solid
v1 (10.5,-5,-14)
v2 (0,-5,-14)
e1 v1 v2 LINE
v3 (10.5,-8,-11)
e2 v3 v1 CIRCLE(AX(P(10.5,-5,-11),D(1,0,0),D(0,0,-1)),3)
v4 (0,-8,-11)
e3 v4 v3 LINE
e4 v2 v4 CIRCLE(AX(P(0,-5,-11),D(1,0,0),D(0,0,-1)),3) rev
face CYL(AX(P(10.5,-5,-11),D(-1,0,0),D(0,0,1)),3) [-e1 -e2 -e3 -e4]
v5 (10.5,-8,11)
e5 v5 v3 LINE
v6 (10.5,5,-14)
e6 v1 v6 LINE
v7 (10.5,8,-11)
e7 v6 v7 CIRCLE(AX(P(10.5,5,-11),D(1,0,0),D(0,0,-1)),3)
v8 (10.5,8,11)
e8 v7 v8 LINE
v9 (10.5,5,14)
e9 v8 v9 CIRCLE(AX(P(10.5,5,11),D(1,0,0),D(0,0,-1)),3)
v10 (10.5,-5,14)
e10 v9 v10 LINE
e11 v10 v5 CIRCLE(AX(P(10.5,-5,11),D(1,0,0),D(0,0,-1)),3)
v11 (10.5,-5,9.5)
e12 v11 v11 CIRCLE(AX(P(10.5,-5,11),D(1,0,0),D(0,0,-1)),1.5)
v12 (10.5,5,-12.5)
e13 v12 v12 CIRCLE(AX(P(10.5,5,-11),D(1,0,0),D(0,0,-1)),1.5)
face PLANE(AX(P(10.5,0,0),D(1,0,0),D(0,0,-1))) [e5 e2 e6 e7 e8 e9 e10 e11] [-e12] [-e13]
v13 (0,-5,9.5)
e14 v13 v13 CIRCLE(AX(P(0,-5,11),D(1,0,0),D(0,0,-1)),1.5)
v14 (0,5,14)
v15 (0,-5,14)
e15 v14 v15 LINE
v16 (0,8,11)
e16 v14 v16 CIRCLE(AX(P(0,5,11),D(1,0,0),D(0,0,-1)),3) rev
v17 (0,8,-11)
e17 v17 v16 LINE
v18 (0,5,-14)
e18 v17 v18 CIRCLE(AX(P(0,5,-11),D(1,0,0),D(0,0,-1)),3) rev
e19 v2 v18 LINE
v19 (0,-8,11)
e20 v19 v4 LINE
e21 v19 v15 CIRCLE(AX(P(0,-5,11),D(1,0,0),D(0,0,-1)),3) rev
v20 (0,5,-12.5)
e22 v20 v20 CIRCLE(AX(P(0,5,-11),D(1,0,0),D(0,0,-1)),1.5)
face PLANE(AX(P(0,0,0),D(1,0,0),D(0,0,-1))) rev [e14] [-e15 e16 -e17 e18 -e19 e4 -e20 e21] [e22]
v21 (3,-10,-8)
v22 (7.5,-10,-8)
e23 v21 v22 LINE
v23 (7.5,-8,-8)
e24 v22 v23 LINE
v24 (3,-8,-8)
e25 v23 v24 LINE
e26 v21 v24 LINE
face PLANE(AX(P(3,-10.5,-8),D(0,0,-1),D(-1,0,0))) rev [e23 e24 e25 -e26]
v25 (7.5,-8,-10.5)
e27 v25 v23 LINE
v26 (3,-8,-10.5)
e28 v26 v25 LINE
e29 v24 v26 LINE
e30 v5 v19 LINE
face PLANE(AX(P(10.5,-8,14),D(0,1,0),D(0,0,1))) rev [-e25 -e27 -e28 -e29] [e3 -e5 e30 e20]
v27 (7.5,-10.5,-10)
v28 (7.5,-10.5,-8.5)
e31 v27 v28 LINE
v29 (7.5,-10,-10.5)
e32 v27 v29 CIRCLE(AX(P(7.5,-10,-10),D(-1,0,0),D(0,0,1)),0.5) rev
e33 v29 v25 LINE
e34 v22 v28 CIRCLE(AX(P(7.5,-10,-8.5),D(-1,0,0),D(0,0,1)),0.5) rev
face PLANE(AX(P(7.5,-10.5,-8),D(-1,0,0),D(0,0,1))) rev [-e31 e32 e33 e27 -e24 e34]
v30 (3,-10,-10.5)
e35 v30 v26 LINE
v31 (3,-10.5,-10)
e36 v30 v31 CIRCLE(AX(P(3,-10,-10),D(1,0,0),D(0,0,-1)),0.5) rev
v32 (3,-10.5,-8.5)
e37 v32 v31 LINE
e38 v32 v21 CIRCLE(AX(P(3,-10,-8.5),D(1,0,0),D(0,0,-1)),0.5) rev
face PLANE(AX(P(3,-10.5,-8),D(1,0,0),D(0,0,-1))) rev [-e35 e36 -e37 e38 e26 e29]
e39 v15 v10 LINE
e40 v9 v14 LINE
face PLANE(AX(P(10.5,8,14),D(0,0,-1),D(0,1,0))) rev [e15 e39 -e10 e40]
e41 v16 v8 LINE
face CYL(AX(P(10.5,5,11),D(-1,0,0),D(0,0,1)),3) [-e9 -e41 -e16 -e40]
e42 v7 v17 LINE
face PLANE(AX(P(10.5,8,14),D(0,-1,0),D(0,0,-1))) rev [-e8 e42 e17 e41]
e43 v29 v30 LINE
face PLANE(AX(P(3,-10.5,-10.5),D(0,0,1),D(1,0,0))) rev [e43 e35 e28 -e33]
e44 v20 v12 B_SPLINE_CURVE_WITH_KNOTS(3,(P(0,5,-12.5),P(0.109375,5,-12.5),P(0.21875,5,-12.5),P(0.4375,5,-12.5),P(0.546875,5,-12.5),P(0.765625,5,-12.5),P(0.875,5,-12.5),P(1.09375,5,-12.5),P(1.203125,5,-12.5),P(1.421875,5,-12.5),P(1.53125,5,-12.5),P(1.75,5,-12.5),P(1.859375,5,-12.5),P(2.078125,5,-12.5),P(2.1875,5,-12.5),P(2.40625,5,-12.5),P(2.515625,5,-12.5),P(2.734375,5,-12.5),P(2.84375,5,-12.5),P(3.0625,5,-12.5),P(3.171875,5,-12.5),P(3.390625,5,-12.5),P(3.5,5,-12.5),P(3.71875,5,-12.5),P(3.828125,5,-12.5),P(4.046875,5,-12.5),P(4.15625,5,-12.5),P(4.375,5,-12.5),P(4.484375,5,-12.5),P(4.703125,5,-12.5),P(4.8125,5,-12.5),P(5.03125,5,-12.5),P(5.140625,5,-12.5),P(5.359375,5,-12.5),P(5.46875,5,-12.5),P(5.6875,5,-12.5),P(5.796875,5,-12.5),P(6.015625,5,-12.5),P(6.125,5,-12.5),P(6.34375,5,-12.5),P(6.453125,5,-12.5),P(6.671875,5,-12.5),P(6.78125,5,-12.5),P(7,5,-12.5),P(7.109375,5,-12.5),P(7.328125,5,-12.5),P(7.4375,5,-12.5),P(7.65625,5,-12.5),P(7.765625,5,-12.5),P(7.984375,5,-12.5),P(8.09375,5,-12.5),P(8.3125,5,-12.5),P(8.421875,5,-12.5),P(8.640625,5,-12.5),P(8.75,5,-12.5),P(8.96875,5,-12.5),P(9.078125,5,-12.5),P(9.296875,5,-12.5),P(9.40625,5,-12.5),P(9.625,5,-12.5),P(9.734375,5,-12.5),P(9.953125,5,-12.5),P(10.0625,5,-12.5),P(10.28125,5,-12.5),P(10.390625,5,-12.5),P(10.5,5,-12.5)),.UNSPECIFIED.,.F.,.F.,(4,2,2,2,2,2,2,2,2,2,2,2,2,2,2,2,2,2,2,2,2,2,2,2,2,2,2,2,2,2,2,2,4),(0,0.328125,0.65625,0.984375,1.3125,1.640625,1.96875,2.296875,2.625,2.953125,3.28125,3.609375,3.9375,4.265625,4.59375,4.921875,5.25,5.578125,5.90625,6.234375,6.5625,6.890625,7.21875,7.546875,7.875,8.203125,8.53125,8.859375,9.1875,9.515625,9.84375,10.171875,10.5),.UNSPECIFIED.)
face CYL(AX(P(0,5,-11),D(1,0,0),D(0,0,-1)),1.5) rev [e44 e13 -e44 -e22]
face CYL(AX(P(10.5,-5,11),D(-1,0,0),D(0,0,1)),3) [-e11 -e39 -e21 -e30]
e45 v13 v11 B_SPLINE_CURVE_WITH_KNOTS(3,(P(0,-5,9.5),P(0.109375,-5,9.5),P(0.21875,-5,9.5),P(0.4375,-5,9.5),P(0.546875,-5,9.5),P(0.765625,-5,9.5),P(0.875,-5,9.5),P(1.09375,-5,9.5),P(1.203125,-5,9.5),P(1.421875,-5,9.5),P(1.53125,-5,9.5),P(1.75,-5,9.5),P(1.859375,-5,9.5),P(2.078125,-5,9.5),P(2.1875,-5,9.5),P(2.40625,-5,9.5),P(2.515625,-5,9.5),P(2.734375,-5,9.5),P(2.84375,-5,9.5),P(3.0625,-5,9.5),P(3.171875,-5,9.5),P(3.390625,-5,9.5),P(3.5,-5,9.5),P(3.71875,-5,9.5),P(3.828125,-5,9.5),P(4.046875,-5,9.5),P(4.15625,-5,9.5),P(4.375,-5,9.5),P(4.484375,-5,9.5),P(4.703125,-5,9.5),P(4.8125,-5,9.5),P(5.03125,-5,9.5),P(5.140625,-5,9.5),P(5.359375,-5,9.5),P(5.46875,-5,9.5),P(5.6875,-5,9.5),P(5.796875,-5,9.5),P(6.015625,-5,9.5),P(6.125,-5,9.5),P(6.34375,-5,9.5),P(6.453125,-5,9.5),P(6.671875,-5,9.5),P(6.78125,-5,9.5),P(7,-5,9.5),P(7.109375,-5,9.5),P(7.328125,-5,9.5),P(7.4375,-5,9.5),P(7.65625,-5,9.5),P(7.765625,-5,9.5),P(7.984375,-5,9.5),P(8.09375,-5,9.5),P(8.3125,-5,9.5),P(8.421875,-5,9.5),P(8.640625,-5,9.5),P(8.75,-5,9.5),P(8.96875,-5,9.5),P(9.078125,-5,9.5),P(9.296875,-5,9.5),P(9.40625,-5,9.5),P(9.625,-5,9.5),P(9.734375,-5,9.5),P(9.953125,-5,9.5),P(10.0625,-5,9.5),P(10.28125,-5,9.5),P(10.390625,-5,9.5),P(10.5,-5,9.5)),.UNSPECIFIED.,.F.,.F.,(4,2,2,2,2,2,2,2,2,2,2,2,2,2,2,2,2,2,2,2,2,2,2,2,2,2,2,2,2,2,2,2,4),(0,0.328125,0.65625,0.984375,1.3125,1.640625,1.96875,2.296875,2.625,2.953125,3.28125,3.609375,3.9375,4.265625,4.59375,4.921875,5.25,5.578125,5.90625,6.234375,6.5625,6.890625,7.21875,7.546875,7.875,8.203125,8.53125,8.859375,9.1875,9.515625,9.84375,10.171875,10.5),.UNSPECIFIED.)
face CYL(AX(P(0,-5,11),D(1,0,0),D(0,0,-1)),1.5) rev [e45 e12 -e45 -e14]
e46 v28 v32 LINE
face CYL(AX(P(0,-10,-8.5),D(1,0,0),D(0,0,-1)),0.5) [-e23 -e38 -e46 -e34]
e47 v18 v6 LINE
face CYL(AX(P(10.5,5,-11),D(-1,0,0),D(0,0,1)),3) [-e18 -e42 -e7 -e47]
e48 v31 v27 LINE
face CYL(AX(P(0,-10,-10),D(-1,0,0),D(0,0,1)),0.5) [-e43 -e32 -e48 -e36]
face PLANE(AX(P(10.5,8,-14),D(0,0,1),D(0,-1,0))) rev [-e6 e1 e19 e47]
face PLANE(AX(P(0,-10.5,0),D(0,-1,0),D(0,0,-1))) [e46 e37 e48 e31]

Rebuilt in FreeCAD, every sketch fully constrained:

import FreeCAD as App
import Part
import Sketcher


def edges_at(feature, points):
    """Names of the edges that pass closest to the given points."""
    edges = feature.Shape.Edges
    near = lambda p: min(range(len(edges)), key=lambda i: edges[i].distToShape(Part.Vertex(*p))[0])
    return sorted({f"Edge{near(p) + 1}" for p in points})


def add_polygon(sketch, points):
    """Adds a closed chain of lines whose ends are joined by coincident constraints."""
    first, n = sketch.GeometryCount, len(points)
    for a, b in zip(points, points[1:] + points[:1]):
        sketch.addGeometry(Part.LineSegment(App.Vector(*a, 0), App.Vector(*b, 0)), False)
    for i in range(n):
        sketch.addConstraint(Sketcher.Constraint("Coincident", first + i, 2, first + (i + 1) % n, 1))

doc = App.newDocument("Part")
body = doc.addObject("PartDesign::Body", "Body")

# Sketch on YZ plane
sketch1 = body.newObject("Sketcher::SketchObject", "Sketch")
sketch1.AttachmentSupport = (doc.getObject("YZ_Plane"), [""])
sketch1.MapMode = "FlatFace"
add_polygon(sketch1, [(8, 14), (-8, 14), (-8, -14), (8, -14)])  # lines 0-3
sketch1.addConstraint([
    Sketcher.Constraint("Horizontal", 0),
    Sketcher.Constraint("Vertical", 1),
    Sketcher.Constraint("Horizontal", 2),
    Sketcher.Constraint("Vertical", 3),
    Sketcher.Constraint("Symmetric", 0, 2, 2, 2, -1, 1),
    Sketcher.Constraint("DistanceX", 0, 2, 0, 1, 16.0),
    Sketcher.Constraint("DistanceY", 1, 2, 1, 1, 28.0),
])
pad1 = body.newObject("PartDesign::Pad", "Pad")
pad1.Profile = sketch1
pad1.Length = 10.5

# Sketch on YZ plane
sketch2 = body.newObject("Sketcher::SketchObject", "Sketch001")
sketch2.AttachmentSupport = (doc.getObject("YZ_Plane"), [""])
sketch2.MapMode = "FlatFace"
sketch2.AttachmentOffset = App.Placement(App.Vector(0, 0, 10.5), App.Rotation())
sketch2.addGeometry([
    Part.Circle(App.Vector(5, -11, 0), App.Vector(0, 0, 1), 1.5),
    Part.Circle(App.Vector(-5, 11, 0), App.Vector(0, 0, 1), 1.5),
], False)
sketch2.addConstraint([
    Sketcher.Constraint("Equal", 0, 1),
    Sketcher.Constraint("Symmetric", 0, 3, 1, 3, -1, 1),
    Sketcher.Constraint("Diameter", 0, 3.0),
    Sketcher.Constraint("DistanceX", -1, 1, 0, 3, 5.0),
    Sketcher.Constraint("DistanceY", 0, 3, -1, 1, 11.0),
])
pocket1 = body.newObject("PartDesign::Pocket", "Pocket")
pocket1.Profile = sketch2
pocket1.Type = "ThroughAll"
doc.recompute()

fillet = body.newObject("PartDesign::Fillet", "Fillet")
fillet.Base = (pocket1, edges_at(pocket1, [
    (5.25, -8, -14),
    (5.25, -8, 14),
    (5.25, 8, 14),
    (5.25, 8, -14),
]))
fillet.Radius = 3

# Sketch on XZ plane
sketch3 = body.newObject("Sketcher::SketchObject", "Sketch002")
sketch3.AttachmentSupport = (doc.getObject("XZ_Plane"), [""])
sketch3.MapMode = "FlatFace"
sketch3.AttachmentOffset = App.Placement(App.Vector(0, 0, 8), App.Rotation())
add_polygon(sketch3, [(3, -8), (3, -10.5), (7.5, -10.5), (7.5, -8)])  # lines 0-3
sketch3.addConstraint([
    Sketcher.Constraint("Vertical", 0),
    Sketcher.Constraint("Horizontal", 1),
    Sketcher.Constraint("Vertical", 2),
    Sketcher.Constraint("Horizontal", 3),
    Sketcher.Constraint("DistanceX", 1, 1, 1, 2, 4.5),
    Sketcher.Constraint("DistanceY", 0, 2, 0, 1, 2.5),
    Sketcher.Constraint("DistanceX", -1, 1, 0, 2, 3.0),
    Sketcher.Constraint("DistanceY", 2, 2, -1, 1, 8.0),
])
pad2 = body.newObject("PartDesign::Pad", "Pad001")
pad2.Profile = sketch3
pad2.Length = 2.5
doc.recompute()

fillet2 = body.newObject("PartDesign::Fillet", "Fillet001")
fillet2.Base = (pad2, edges_at(pad2, [(5.25, -10.5, -10.5), (5.25, -10.5, -8)]))
fillet2.Radius = 0.5

doc.recompute()
